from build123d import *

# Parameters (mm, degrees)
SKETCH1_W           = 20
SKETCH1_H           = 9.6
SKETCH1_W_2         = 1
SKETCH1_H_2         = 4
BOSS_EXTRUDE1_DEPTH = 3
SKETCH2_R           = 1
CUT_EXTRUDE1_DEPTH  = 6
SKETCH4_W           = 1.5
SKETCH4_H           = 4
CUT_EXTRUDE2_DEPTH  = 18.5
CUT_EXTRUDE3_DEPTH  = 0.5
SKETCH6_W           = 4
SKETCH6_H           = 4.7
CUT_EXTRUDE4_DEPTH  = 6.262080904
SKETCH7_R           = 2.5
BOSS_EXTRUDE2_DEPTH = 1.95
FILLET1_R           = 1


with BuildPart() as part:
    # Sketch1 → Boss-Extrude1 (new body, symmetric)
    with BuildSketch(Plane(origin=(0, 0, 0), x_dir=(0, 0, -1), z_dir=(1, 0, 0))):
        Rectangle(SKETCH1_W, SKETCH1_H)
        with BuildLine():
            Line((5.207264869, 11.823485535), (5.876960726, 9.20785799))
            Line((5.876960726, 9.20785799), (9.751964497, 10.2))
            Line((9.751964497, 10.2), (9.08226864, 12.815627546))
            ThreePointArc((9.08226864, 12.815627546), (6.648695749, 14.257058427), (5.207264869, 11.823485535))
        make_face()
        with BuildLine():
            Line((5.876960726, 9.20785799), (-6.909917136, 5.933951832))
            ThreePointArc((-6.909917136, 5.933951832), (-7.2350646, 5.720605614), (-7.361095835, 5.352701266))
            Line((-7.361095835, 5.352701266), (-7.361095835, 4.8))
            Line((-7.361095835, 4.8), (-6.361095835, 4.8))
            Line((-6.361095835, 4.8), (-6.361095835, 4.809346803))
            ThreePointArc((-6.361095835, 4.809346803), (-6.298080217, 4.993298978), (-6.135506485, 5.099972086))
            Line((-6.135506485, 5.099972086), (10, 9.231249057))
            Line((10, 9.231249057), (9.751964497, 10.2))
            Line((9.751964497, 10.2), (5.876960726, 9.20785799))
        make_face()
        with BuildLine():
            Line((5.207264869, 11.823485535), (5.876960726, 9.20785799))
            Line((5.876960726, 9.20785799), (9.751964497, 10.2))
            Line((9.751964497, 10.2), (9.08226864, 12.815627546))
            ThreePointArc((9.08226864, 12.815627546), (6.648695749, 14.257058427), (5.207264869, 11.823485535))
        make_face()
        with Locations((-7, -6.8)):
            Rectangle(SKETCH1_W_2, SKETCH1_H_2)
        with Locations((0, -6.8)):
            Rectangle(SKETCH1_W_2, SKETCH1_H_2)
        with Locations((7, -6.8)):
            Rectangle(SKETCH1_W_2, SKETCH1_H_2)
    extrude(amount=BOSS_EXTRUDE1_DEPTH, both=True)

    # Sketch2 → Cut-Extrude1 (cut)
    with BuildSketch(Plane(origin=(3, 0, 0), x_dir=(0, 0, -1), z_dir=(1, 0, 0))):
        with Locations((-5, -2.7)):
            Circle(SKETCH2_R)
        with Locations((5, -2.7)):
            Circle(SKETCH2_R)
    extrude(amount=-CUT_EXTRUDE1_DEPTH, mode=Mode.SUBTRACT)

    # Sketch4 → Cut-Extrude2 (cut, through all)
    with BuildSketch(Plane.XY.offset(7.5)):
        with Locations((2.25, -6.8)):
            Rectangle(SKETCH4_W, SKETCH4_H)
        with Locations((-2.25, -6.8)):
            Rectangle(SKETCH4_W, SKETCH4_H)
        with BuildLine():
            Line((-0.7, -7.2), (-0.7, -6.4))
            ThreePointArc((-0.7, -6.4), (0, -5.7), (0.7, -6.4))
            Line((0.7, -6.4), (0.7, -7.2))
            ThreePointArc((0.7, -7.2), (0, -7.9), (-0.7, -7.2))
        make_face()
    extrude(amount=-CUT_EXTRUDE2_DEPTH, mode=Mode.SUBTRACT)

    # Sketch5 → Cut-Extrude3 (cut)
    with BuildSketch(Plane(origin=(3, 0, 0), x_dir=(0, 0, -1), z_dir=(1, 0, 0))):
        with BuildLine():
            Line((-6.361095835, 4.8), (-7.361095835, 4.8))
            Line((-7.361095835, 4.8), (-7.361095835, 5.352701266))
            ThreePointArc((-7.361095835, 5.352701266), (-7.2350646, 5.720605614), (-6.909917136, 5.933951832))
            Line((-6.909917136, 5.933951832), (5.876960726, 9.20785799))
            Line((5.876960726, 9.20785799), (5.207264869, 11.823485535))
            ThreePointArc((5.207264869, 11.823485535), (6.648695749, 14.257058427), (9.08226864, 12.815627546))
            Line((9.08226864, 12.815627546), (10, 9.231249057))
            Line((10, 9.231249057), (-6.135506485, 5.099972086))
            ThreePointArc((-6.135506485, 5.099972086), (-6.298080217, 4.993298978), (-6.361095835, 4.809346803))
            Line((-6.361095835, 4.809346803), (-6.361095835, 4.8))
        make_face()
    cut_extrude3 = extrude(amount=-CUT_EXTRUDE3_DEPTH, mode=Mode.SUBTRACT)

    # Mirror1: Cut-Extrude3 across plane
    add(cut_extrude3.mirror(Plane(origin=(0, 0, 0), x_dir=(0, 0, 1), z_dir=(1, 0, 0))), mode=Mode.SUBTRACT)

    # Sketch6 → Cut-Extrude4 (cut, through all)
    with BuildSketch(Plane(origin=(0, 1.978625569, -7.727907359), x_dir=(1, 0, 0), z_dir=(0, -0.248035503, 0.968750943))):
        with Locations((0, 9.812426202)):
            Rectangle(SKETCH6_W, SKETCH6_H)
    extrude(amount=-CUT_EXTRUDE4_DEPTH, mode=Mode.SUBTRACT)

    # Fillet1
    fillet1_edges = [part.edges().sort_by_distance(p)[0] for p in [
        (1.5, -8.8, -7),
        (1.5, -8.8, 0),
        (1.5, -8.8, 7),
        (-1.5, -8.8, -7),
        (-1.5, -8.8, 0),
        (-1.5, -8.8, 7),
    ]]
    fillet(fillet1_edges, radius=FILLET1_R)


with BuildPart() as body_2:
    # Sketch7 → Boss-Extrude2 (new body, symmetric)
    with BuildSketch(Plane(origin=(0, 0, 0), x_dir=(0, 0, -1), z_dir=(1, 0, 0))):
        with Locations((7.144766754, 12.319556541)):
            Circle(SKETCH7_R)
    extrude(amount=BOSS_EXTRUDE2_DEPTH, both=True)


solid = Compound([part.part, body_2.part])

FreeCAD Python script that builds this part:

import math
import FreeCAD as App
import Part
import Sketcher

V = App.Vector
Q = App.Units.Quantity


def edges_at(feature, points):
    """Names of the edges that pass closest to the given points."""
    edges = feature.Shape.Edges
    near = lambda p: min(range(len(edges)), key=lambda i: edges[i].distToShape(Part.Vertex(*p))[0])
    return sorted({f"Edge{near(p) + 1}" for p in points})

doc = App.newDocument("Part")
body = doc.addObject("PartDesign::Body", "Body")

# Sketch on YZ plane
sketch1 = body.newObject("Sketcher::SketchObject", "Sketch")
sketch1.AttachmentSupport = (doc.getObject("YZ_Plane"), [""])
sketch1.MapMode = "FlatFace"
sketch1.addGeometry([
    Part.LineSegment(V(4.8, 10, 0), V(-4.8, 10, 0)),  # 0
    Part.LineSegment(V(-4.8, 10, 0), V(-4.8, 7.5, 0)),  # 1
    Part.LineSegment(V(-4.8, 7.5, 0), V(-8.8, 7.5, 0)),  # 2
    Part.LineSegment(V(-8.8, 7.5, 0), V(-8.8, 6.5, 0)),  # 3
    Part.LineSegment(V(-8.8, 6.5, 0), V(-4.8, 6.5, 0)),  # 4
    Part.LineSegment(V(-4.8, 6.5, 0), V(-4.8, 0.5, 0)),  # 5
    Part.LineSegment(V(-4.8, 0.5, 0), V(-8.8, 0.5, 0)),  # 6
    Part.LineSegment(V(-8.8, 0.5, 0), V(-8.8, -0.5, 0)),  # 7
    Part.LineSegment(V(-8.8, -0.5, 0), V(-4.8, -0.5, 0)),  # 8
    Part.LineSegment(V(-4.8, -0.5, 0), V(-4.8, -6.5, 0)),  # 9
    Part.LineSegment(V(-4.8, -6.5, 0), V(-8.8, -6.5, 0)),  # 10
    Part.LineSegment(V(-8.8, -6.5, 0), V(-8.8, -7.5, 0)),  # 11
    Part.LineSegment(V(-8.8, -7.5, 0), V(-4.8, -7.5, 0)),  # 12
    Part.LineSegment(V(-4.8, -7.5, 0), V(-4.8, -10, 0)),  # 13
    Part.LineSegment(V(-4.8, -10, 0), V(4.8, -10, 0)),  # 14
    Part.LineSegment(V(4.8, -10, 0), V(4.8, 6.361, 0)),  # 15
    Part.LineSegment(V(4.8, 6.361, 0), V(4.809, 6.361, 0)),  # 16
    Part.ArcOfCircle(Part.Circle(V(4.809, 6.061, 0), V(0, 0, 1), 0.3), math.radians(14), math.radians(90)),  # 17
    Part.LineSegment(V(5.1, 6.136, 0), V(9.231, -10, 0)),  # 18
    Part.LineSegment(V(9.231, -10, 0), V(10.2, -9.752, 0)),  # 19
    Part.LineSegment(V(10.2, -9.752, 0), V(12.816, -9.082, 0)),  # 20
    Part.ArcOfCircle(Part.Circle(V(12.32, -7.145, 0), V(0, 0, 1), 2), math.radians(-76), math.radians(104)),  # 21
    Part.LineSegment(V(11.823, -5.207, 0), V(9.208, -5.877, 0)),  # 22
    Part.LineSegment(V(9.208, -5.877, 0), V(5.934, 6.91, 0)),  # 23
    Part.ArcOfCircle(Part.Circle(V(5.353, 6.761, 0), V(0, 0, 1), 0.6), math.radians(14), math.radians(90)),  # 24
    Part.LineSegment(V(5.353, 7.361, 0), V(4.8, 7.361, 0)),  # 25
    Part.LineSegment(V(4.8, 7.361, 0), V(4.8, 10, 0)),  # 26
], False)
sketch1.addConstraint([
    Sketcher.Constraint("Coincident", 0, 2, 1, 1),
    Sketcher.Constraint("Coincident", 1, 2, 2, 1),
    Sketcher.Constraint("Coincident", 2, 2, 3, 1),
    Sketcher.Constraint("Coincident", 3, 2, 4, 1),
    Sketcher.Constraint("Coincident", 4, 2, 5, 1),
    Sketcher.Constraint("Coincident", 5, 2, 6, 1),
    Sketcher.Constraint("Coincident", 6, 2, 7, 1),
    Sketcher.Constraint("Coincident", 7, 2, 8, 1),
    Sketcher.Constraint("Coincident", 8, 2, 9, 1),
    Sketcher.Constraint("Coincident", 9, 2, 10, 1),
    Sketcher.Constraint("Coincident", 10, 2, 11, 1),
    Sketcher.Constraint("Coincident", 11, 2, 12, 1),
    Sketcher.Constraint("Coincident", 12, 2, 13, 1),
    Sketcher.Constraint("Coincident", 13, 2, 14, 1),
    Sketcher.Constraint("Coincident", 14, 2, 15, 1),
    Sketcher.Constraint("Coincident", 15, 2, 16, 1),
    Sketcher.Constraint("Tangent", 16, 2, 17, 2),
    Sketcher.Constraint("Tangent", 17, 1, 18, 1),
    Sketcher.Constraint("Coincident", 18, 2, 19, 1),
    Sketcher.Constraint("Coincident", 19, 2, 20, 1),
    Sketcher.Constraint("Tangent", 20, 2, 21, 1),
    Sketcher.Constraint("Tangent", 21, 2, 22, 1),
    Sketcher.Constraint("Coincident", 22, 2, 23, 1),
    Sketcher.Constraint("Tangent", 23, 2, 24, 1),
    Sketcher.Constraint("Tangent", 24, 2, 25, 1),
    Sketcher.Constraint("Coincident", 25, 2, 26, 1),
    Sketcher.Constraint("Coincident", 26, 2, 0, 1),
    Sketcher.Constraint("Horizontal", 0),
    Sketcher.Constraint("Vertical", 1),
    Sketcher.Constraint("Horizontal", 2),
    Sketcher.Constraint("Vertical", 3),
    Sketcher.Constraint("Horizontal", 4),
    Sketcher.Constraint("Vertical", 5),
    Sketcher.Constraint("Horizontal", 6),
    Sketcher.Constraint("Vertical", 7),
    Sketcher.Constraint("Horizontal", 8),
    Sketcher.Constraint("Vertical", 9),
    Sketcher.Constraint("Horizontal", 10),
    Sketcher.Constraint("Vertical", 11),
    Sketcher.Constraint("Horizontal", 12),
    Sketcher.Constraint("Vertical", 13),
    Sketcher.Constraint("Horizontal", 14),
    Sketcher.Constraint("Vertical", 15),
    Sketcher.Constraint("Horizontal", 16),
    Sketcher.Constraint("Horizontal", 25),
    Sketcher.Constraint("Vertical", 26),
    Sketcher.Constraint("Symmetric", 0, 2, 14, 2, -1, 1),
    Sketcher.Constraint("Symmetric", 5, 2, 8, 2, -1),
    Sketcher.Constraint("Symmetric", 3, 2, 10, 2, -1),
    Sketcher.Constraint("Symmetric", 1, 2, 12, 2, -1),
    Sketcher.Constraint("Perpendicular", 18, 19),
    Sketcher.Constraint("Parallel", 19, 20),
    Sketcher.Constraint("Parallel", 20, 22),
    Sketcher.Constraint("Perpendicular", 22, 23),
    Sketcher.Constraint("Horizontal", 14, 2, 18, 2),
    Sketcher.Constraint("Vertical", 1, 2, 4, 2),
    Sketcher.Constraint("Vertical", 3, 2, 6, 2),
    Sketcher.Constraint("Vertical", 15, 2, 25, 2),
    Sketcher.Constraint("Equal", 3, 7),
    Sketcher.Constraint("Equal", 20, 22),
    Sketcher.Constraint("Radius", 21, Q("2 mm")),
    Sketcher.Constraint("Radius", 17, Q("0.3 mm")),
    Sketcher.Constraint("Radius", 24, Q("0.6 mm")),
    Sketcher.Constraint("DistanceX", 2, 2, 2, 1, Q("4 mm")),
    Sketcher.Constraint("DistanceY", 3, 2, 3, 1, Q("1 mm")),
    Sketcher.Constraint("DistanceY", 5, 2, 5, 1, Q("6 mm")),
    Sketcher.Constraint("Distance", 19, Q("1 mm")),
    Sketcher.Constraint("DistanceX", 0, 2, 0, 1, Q("9.6 mm")),
    Sketcher.Constraint("DistanceY", 1, 2, 1, 1, Q("2.5 mm")),
    Sketcher.Constraint("DistanceX", 13, 2, 19, 2, Q("15 mm")),
    Sketcher.Constraint("DistanceY", 16, 2, 24, 2, Q("1 mm")),
    Sketcher.Constraint("Distance", 20, Q("2.7 mm")),
    Sketcher.Constraint("DistanceX", 25, 2, 25, 1, Q("0.552701 mm")),
    Sketcher.Constraint("DistanceY", 21, 3, 21, 2, Q("1.937502 mm")),
])
pad1 = body.newObject("PartDesign::Pad", "Pad")
pad1.Profile = sketch1
pad1.Length = 6
pad1.Midplane = True

# Sketch on YZ plane
sketch2 = body.newObject("Sketcher::SketchObject", "Sketch001")
sketch2.AttachmentSupport = (doc.getObject("YZ_Plane"), [""])
sketch2.MapMode = "FlatFace"
sketch2.AttachmentOffset = App.Placement(V(0, 0, 3), App.Rotation())
sketch2.addGeometry([
    Part.Circle(V(-2.7, 5, 0), V(0, 0, 1), 1),
    Part.Circle(V(-2.7, -5, 0), V(0, 0, 1), 1),
], False)
sketch2.addConstraint([
    Sketcher.Constraint("Equal", 0, 1),
    Sketcher.Constraint("Symmetric", 0, 3, 1, 3, -1),
    Sketcher.Constraint("Diameter", 0, Q("2 mm")),
    Sketcher.Constraint("DistanceY", -1, 1, 0, 3, Q("5 mm")),
    Sketcher.Constraint("DistanceX", 0, 3, -1, 1, Q("2.7 mm")),
])
pocket1 = body.newObject("PartDesign::Pocket", "Pocket")
pocket1.Profile = sketch2
pocket1.Length = 6

# Sketch on XY plane
sketch3 = body.newObject("Sketcher::SketchObject", "Sketch002")
sketch3.AttachmentSupport = (doc.getObject("XY_Plane"), [""])
sketch3.MapMode = "FlatFace"
sketch3.AttachmentOffset = App.Placement(V(0, 0, 7.5), App.Rotation())
sketch3.addGeometry([
    Part.LineSegment(V(1.5, -4.8, 0), V(1.5, -8.8, 0)),  # 0
    Part.LineSegment(V(1.5, -8.8, 0), V(3, -8.8, 0)),  # 1
    Part.LineSegment(V(3, -8.8, 0), V(3, -4.8, 0)),  # 2
    Part.LineSegment(V(3, -4.8, 0), V(1.5, -4.8, 0)),  # 3
    Part.LineSegment(V(-3, -4.8, 0), V(-3, -8.8, 0)),  # 4
    Part.LineSegment(V(-3, -8.8, 0), V(-1.5, -8.8, 0)),  # 5
    Part.LineSegment(V(-1.5, -8.8, 0), V(-1.5, -4.8, 0)),  # 6
    Part.LineSegment(V(-1.5, -4.8, 0), V(-3, -4.8, 0)),  # 7
    Part.LineSegment(V(-0.7, -6.4, 0), V(-0.7, -7.2, 0)),  # 8
    Part.ArcOfCircle(Part.Circle(V(0, -7.2, 0), V(0, 0, 1), 0.7), math.radians(180), math.radians(360)),  # 9
    Part.LineSegment(V(0.7, -7.2, 0), V(0.7, -6.4, 0)),  # 10
    Part.ArcOfCircle(Part.Circle(V(0, -6.4, 0), V(0, 0, 1), 0.7), math.radians(0), math.radians(180)),  # 11
], False)
sketch3.addConstraint([
    Sketcher.Constraint("Coincident", 0, 2, 1, 1),
    Sketcher.Constraint("Coincident", 1, 2, 2, 1),
    Sketcher.Constraint("Coincident", 2, 2, 3, 1),
    Sketcher.Constraint("Coincident", 3, 2, 0, 1),
    Sketcher.Constraint("Coincident", 4, 2, 5, 1),
    Sketcher.Constraint("Coincident", 5, 2, 6, 1),
    Sketcher.Constraint("Coincident", 6, 2, 7, 1),
    Sketcher.Constraint("Coincident", 7, 2, 4, 1),
    Sketcher.Constraint("Tangent", 8, 2, 9, 1),
    Sketcher.Constraint("Tangent", 9, 2, 10, 1),
    Sketcher.Constraint("Tangent", 10, 2, 11, 1),
    Sketcher.Constraint("Tangent", 11, 2, 8, 1),
    Sketcher.Constraint("Vertical", 0),
    Sketcher.Constraint("Horizontal", 1),
    Sketcher.Constraint("Vertical", 2),
    Sketcher.Constraint("Horizontal", 3),
    Sketcher.Constraint("Vertical", 4),
    Sketcher.Constraint("Horizontal", 5),
    Sketcher.Constraint("Vertical", 6),
    Sketcher.Constraint("Horizontal", 7),
    Sketcher.Constraint("Vertical", 8),
    Sketcher.Constraint("Vertical", 10),
    Sketcher.Constraint("Symmetric", 1, 2, 4, 2, -2),
    Sketcher.Constraint("Symmetric", 3, 2, 6, 2, -2),
    Sketcher.Constraint("PointOnObject", 9, 3, -2),
    Sketcher.Constraint("Radius", 9, Q("0.7 mm")),
    Sketcher.Constraint("DistanceY", 0, 2, 0, 1, Q("4 mm")),
    Sketcher.Constraint("DistanceX", 1, 1, 1, 2, Q("1.5 mm")),
    Sketcher.Constraint("DistanceY", 8, 2, 8, 1, Q("0.8 mm")),
    Sketcher.Constraint("DistanceX", -1, 1, 1, 2, Q("3 mm")),
    Sketcher.Constraint("DistanceY", 9, 3, -1, 1, Q("7.2 mm")),
    Sketcher.Constraint("DistanceY", 0, 2, -1, 1, Q("8.8 mm")),
])
pocket2 = body.newObject("PartDesign::Pocket", "Pocket001")
pocket2.Profile = sketch3
pocket2.Type = "ThroughAll"

# Sketch on YZ plane
sketch4 = body.newObject("Sketcher::SketchObject", "Sketch003")
sketch4.AttachmentSupport = (doc.getObject("YZ_Plane"), [""])
sketch4.MapMode = "FlatFace"
sketch4.AttachmentOffset = App.Placement(V(0, 0, 3), App.Rotation())
sketch4.addGeometry([
    Part.LineSegment(V(4.8, 7.361, 0), V(4.8, 6.361, 0)),  # 0
    Part.LineSegment(V(4.8, 6.361, 0), V(4.809, 6.361, 0)),  # 1
    Part.ArcOfCircle(Part.Circle(V(4.809, 6.061, 0), V(0, 0, 1), 0.3), math.radians(14), math.radians(90)),  # 2
    Part.LineSegment(V(5.1, 6.136, 0), V(9.231, -10, 0)),  # 3
    Part.LineSegment(V(9.231, -10, 0), V(12.816, -9.082, 0)),  # 4
    Part.ArcOfCircle(Part.Circle(V(12.32, -7.145, 0), V(0, 0, 1), 2), math.radians(-76), math.radians(104)),  # 5
    Part.LineSegment(V(11.823, -5.207, 0), V(9.208, -5.877, 0)),  # 6
    Part.LineSegment(V(9.208, -5.877, 0), V(5.934, 6.91, 0)),  # 7
    Part.ArcOfCircle(Part.Circle(V(5.353, 6.761, 0), V(0, 0, 1), 0.6), math.radians(14), math.radians(90)),  # 8
    Part.LineSegment(V(5.353, 7.361, 0), V(4.8, 7.361, 0)),  # 9
], False)
sketch4.addConstraint([
    Sketcher.Constraint("Coincident", 0, 2, 1, 1),
    Sketcher.Constraint("Tangent", 1, 2, 2, 2),
    Sketcher.Constraint("Tangent", 2, 1, 3, 1),
    Sketcher.Constraint("Coincident", 3, 2, 4, 1),
    Sketcher.Constraint("Tangent", 4, 2, 5, 1),
    Sketcher.Constraint("Tangent", 5, 2, 6, 1),
    Sketcher.Constraint("Coincident", 6, 2, 7, 1),
    Sketcher.Constraint("Tangent", 7, 2, 8, 1),
    Sketcher.Constraint("Tangent", 8, 2, 9, 1),
    Sketcher.Constraint("Coincident", 9, 2, 0, 1),
    Sketcher.Constraint("Vertical", 0),
    Sketcher.Constraint("Horizontal", 1),
    Sketcher.Constraint("Horizontal", 9),
    Sketcher.Constraint("Perpendicular", 3, 4),
    Sketcher.Constraint("Parallel", 4, 6),
    Sketcher.Constraint("Perpendicular", 6, 7),
    Sketcher.Constraint("Radius", 5, Q("2 mm")),
    Sketcher.Constraint("Radius", 2, Q("0.3 mm")),
    Sketcher.Constraint("Radius", 8, Q("0.6 mm")),
    Sketcher.Constraint("DistanceY", 0, 2, 0, 1, Q("1 mm")),
    Sketcher.Constraint("DistanceY", 3, 2, -1, 1, Q("10 mm")),
    Sketcher.Constraint("Distance", 4, Q("3.7 mm")),
    Sketcher.Constraint("Distance", 6, Q("2.7 mm")),
    Sketcher.Constraint("DistanceX", -1, 1, 0, 2, Q("4.8 mm")),
    Sketcher.Constraint("DistanceX", 9, 2, 9, 1, Q("0.552701 mm")),
    Sketcher.Constraint("DistanceY", 4, 2, 5, 3, Q("1.937502 mm")),
    Sketcher.Constraint("Distance", 3, Q("16.65599 mm")),
])
pocket3 = body.newObject("PartDesign::Pocket", "Pocket002")
pocket3.Profile = sketch4
pocket3.Length = 0.5
doc.recompute()

mirrored = body.newObject("PartDesign::Mirrored", "Mirrored")
mirrored.Originals = [pocket3]
mirrored.MirrorPlane = (doc.getObject("YZ_Plane"), [""])
body.Tip = mirrored

# Sketch on an angled plane
sketch5 = body.newObject("Sketcher::SketchObject", "Sketch004")
sketch5.Placement = App.Placement(V(0, 1.978626, -7.727907), App.Rotation(V(1, 0, 0), V(0, 0.968750943, 0.248035503), V(0, -0.248035503, 0.968750943), "ZXY"))
sketch5.addGeometry([
    Part.LineSegment(V(-2, 12.2, 0), V(-2, 7.5, 0)),
    Part.LineSegment(V(-2, 7.5, 0), V(2, 7.5, 0)),
    Part.LineSegment(V(2, 7.5, 0), V(2, 12.2, 0)),
    Part.LineSegment(V(2, 12.2, 0), V(-2, 12.2, 0)),
], False)
sketch5.addConstraint([
    Sketcher.Constraint("Coincident", 0, 2, 1, 1),
    Sketcher.Constraint("Coincident", 1, 2, 2, 1),
    Sketcher.Constraint("Coincident", 2, 2, 3, 1),
    Sketcher.Constraint("Coincident", 3, 2, 0, 1),
    Sketcher.Constraint("Vertical", 0),
    Sketcher.Constraint("Horizontal", 1),
    Sketcher.Constraint("Vertical", 2),
    Sketcher.Constraint("Horizontal", 3),
    Sketcher.Constraint("DistanceX", 1, 1, 1, 2, Q("4 mm")),
    Sketcher.Constraint("DistanceY", 0, 2, 0, 1, Q("4.7 mm")),
    Sketcher.Constraint("DistanceX", 0, 2, -1, 1, Q("2 mm")),
    Sketcher.Constraint("DistanceY", -1, 1, 0, 2, Q("7.462426 mm")),
])
pocket4 = body.newObject("PartDesign::Pocket", "Pocket003")
pocket4.Profile = sketch5
pocket4.Type = "ThroughAll"
doc.recompute()

fillet = body.newObject("PartDesign::Fillet", "Fillet")
fillet.Base = (pocket4, edges_at(pocket4, [
    (1.5, -8.8, -7),
    (1.5, -8.8, 0),
    (1.5, -8.8, 7),
    (-1.5, -8.8, -7),
    (-1.5, -8.8, 0),
    (-1.5, -8.8, 7),
]))
fillet.Radius = 1
body2 = doc.addObject("PartDesign::Body", "Body001")

# Sketch on YZ plane
sketch6 = body2.newObject("Sketcher::SketchObject", "Sketch005")
sketch6.AttachmentSupport = (doc.getObject("YZ_Plane001"), [""])
sketch6.MapMode = "FlatFace"
sketch6.addGeometry(Part.Circle(V(12.3, -7.1, 0), V(0, 0, 1), 2.5), False)
sketch6.addConstraint([
    Sketcher.Constraint("Diameter", 0, Q("5 mm")),
    Sketcher.Constraint("DistanceX", -1, 1, 0, 3, Q("12.319557 mm")),
    Sketcher.Constraint("DistanceY", 0, 3, -1, 1, Q("7.144767 mm")),
])
pad2 = body2.newObject("PartDesign::Pad", "Pad001")
pad2.Profile = sketch6
pad2.Length = 3.9
pad2.Midplane = True

doc.recompute()
